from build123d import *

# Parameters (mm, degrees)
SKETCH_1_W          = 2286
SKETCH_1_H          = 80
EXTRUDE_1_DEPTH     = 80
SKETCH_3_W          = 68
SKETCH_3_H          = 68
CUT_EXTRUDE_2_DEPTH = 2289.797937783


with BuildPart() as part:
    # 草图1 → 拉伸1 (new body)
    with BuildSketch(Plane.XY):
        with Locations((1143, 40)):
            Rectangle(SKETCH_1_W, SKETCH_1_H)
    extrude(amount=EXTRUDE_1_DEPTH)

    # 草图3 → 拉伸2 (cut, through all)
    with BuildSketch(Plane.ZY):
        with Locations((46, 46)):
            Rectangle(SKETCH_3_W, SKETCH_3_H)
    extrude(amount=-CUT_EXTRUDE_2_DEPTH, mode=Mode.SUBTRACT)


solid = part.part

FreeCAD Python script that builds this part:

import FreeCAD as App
import Part
import Sketcher

V = App.Vector


def add_polygon(sketch, points):
    """Adds a closed chain of lines whose ends are joined by coincident constraints."""
    first, n = sketch.GeometryCount, len(points)
    for a, b in zip(points, points[1:] + points[:1]):
        sketch.addGeometry(Part.LineSegment(App.Vector(*a, 0), App.Vector(*b, 0)), False)
    for i in range(n):
        sketch.addConstraint(Sketcher.Constraint("Coincident", first + i, 2, first + (i + 1) % n, 1))

doc = App.newDocument("Part")
body = doc.addObject("PartDesign::Body", "Body")

sketch1 = body.newObject("Sketcher::SketchObject", "Sketch")
sketch1.AttachmentSupport = (doc.getObject("XY_Plane"), [""])
sketch1.MapMode = "FlatFace"
add_polygon(sketch1, [(0, 80), (0, 0), (2286, 0), (2286, 80)])
sketch1.addConstraint(Sketcher.Constraint("Vertical", 0))
sketch1.addConstraint(Sketcher.Constraint("Horizontal", 1))
sketch1.addConstraint(Sketcher.Constraint("Vertical", 2))
sketch1.addConstraint(Sketcher.Constraint("Horizontal", 3))
sketch1.addConstraint(Sketcher.Constraint("Coincident", 0, 2, -1, 1))
sketch1.addConstraint(Sketcher.Constraint("DistanceX", 1, 1, 1, 2, 2286.0))
sketch1.addConstraint(Sketcher.Constraint("DistanceY", 0, 2, 0, 1, 80.0))
pad1 = body.newObject("PartDesign::Pad", "Pad")
pad1.Profile = sketch1
pad1.Length = 80

sketch2 = body.newObject("Sketcher::SketchObject", "Sketch001")
sketch2.AttachmentSupport = (doc.getObject("YZ_Plane"), [""])
sketch2.MapMode = "FlatFace"
add_polygon(sketch2, [(80, 12), (12, 12), (12, 80), (80, 80)])
sketch2.addConstraint(Sketcher.Constraint("Horizontal", 0))
sketch2.addConstraint(Sketcher.Constraint("Vertical", 1))
sketch2.addConstraint(Sketcher.Constraint("Horizontal", 2))
sketch2.addConstraint(Sketcher.Constraint("Vertical", 3))
sketch2.addConstraint(Sketcher.Constraint("Equal", 2, 1))
sketch2.addConstraint(Sketcher.Constraint("DistanceX", 0, 2, 0, 1, 68.0))
sketch2.addConstraint(Sketcher.Constraint("DistanceX", -1, 1, 0, 2, 12.0))
sketch2.addConstraint(Sketcher.Constraint("DistanceY", -1, 1, 0, 2, 12.0))
pocket1 = body.newObject("PartDesign::Pocket", "Pocket")
pocket1.Profile = sketch2
pocket1.Type = "ThroughAll"
pocket1.Reversed = True

doc.recompute()
